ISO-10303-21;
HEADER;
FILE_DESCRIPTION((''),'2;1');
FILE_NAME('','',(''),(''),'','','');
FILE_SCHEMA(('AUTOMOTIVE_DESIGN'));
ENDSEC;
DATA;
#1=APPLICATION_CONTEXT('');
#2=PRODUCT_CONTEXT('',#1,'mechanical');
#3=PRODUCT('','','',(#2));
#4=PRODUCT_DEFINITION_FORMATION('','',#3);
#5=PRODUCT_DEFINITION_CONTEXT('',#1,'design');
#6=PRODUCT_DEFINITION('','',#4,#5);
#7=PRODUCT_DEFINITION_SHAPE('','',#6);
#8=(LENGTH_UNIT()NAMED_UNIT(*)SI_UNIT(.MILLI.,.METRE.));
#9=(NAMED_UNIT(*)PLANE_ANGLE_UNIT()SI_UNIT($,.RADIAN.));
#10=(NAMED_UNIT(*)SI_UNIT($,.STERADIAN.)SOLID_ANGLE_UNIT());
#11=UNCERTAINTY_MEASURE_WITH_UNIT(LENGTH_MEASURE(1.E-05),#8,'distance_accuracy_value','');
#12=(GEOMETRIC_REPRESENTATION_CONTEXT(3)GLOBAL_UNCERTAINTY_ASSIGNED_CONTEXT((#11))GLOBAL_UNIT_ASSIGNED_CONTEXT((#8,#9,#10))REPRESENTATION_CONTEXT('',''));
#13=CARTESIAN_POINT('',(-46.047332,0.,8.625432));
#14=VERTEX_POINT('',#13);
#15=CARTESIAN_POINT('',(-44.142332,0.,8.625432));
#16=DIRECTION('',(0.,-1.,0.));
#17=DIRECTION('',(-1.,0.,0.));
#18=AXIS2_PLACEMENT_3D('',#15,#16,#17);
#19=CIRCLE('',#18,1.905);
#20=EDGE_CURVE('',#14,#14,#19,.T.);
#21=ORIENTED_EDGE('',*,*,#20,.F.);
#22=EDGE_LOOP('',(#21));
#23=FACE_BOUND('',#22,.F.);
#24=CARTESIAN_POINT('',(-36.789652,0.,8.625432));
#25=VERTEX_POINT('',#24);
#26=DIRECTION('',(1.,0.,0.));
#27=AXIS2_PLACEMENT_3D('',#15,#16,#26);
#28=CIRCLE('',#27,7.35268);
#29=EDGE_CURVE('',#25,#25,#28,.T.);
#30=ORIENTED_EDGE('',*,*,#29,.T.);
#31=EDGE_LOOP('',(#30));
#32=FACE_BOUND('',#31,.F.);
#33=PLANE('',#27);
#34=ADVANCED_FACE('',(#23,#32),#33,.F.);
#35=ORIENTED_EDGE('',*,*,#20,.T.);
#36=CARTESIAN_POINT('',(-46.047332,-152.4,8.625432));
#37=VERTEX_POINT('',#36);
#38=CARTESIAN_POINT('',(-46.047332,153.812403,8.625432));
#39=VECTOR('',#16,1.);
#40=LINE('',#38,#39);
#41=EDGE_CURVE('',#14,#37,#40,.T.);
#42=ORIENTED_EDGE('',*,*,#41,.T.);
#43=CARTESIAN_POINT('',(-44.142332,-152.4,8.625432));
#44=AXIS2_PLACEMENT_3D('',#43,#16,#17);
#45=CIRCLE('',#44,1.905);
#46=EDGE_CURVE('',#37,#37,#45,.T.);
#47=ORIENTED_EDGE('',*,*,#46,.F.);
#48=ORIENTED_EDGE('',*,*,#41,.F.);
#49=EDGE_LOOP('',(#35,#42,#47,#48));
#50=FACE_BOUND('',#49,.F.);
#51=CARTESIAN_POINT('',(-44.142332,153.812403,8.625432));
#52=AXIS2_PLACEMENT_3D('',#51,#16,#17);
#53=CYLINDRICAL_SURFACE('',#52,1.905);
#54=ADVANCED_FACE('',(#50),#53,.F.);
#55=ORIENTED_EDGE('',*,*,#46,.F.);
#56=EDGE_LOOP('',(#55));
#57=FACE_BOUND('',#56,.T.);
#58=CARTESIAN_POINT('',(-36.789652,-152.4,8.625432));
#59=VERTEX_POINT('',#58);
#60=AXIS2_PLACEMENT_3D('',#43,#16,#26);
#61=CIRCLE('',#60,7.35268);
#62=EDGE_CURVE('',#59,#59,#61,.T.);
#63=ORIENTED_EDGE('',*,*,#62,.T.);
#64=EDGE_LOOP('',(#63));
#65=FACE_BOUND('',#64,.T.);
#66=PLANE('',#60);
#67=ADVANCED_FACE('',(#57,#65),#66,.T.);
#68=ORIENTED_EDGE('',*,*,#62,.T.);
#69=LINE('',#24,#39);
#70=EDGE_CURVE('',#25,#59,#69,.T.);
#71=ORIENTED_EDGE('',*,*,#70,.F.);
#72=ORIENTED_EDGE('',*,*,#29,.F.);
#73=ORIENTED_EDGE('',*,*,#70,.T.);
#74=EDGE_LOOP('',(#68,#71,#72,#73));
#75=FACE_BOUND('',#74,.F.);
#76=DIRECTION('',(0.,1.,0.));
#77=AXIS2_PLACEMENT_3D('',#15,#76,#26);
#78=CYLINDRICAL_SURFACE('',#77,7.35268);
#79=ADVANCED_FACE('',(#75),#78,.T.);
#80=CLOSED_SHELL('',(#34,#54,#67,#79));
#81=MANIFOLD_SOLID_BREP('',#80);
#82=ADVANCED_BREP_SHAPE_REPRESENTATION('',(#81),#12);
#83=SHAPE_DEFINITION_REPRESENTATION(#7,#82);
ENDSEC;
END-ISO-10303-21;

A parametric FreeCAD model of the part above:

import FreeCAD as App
import Part
import Sketcher
Q = App.Units.Quantity

doc = App.newDocument("Part")
params = doc.addObject("Spreadsheet::Sheet", "Params")
for row, (alias, value) in enumerate([
    ("pad1_length", "6 in"),
    ("sketch2_diameter", "0.15 in"),
    ("hole_diameter", "0.15 in"),
], start=1):
    params.set(f"A{row}", alias)
    params.set(f"B{row}", "=" + value)
    params.setAlias(f"B{row}", alias)

body = doc.addObject("PartDesign::Body", "Body")

# Sketch on XZ plane
sketch1 = doc.addObject("Sketcher::SketchObject", "Sketch")
body.addObject(sketch1)
sketch1.AttachmentSupport = (doc.XZ_Plane, [""])
sketch1.MapMode = "FlatFace"
sketch1.addGeometry(Part.Circle(App.Vector(-44, 9, 0), App.Vector(0, 0, 1), 7), False)
sketch1.addConstraint(Sketcher.Constraint("Diameter", 0, 14.70536))
sketch1.addConstraint(Sketcher.Constraint("DistanceX", 0, 3, -1, 1, 44.142332))
sketch1.addConstraint(Sketcher.Constraint("DistanceY", -1, 1, 0, 3, 8.625432))
pad1 = doc.addObject("PartDesign::Pad", "Pad")
body.addObject(pad1)
pad1.Profile = sketch1
pad1.setExpression("Length", "Params.pad1_length")

# Sketch on XZ plane
sketch2 = doc.addObject("Sketcher::SketchObject", "Sketch001")
body.addObject(sketch2)
sketch2.AttachmentSupport = (doc.XZ_Plane, [""])
sketch2.MapMode = "FlatFace"
sketch2.addGeometry(Part.Circle(App.Vector(-44.1, 8.6, 0), App.Vector(0, 0, 1), 1.9), False)
sketch2.addConstraint(Sketcher.Constraint("Diameter", 0, Q("0.15 in")))
sketch2.addConstraint(Sketcher.Constraint("DistanceX", 0, 3, -1, 1, 44.142332))
sketch2.addConstraint(Sketcher.Constraint("DistanceY", -1, 1, 0, 3, 8.625432))
sketch2.setExpression("Constraints[0]", "Params.sketch2_diameter")
doc.recompute()
hole = doc.addObject("PartDesign::Hole", "Hole")
body.addObject(hole)
hole.Profile = sketch2
hole.ThreadType = "None"
hole.setExpression("Diameter", "Params.hole_diameter")
hole.DepthType = "ThroughAll"
hole.Reversed = True

doc.recompute()
